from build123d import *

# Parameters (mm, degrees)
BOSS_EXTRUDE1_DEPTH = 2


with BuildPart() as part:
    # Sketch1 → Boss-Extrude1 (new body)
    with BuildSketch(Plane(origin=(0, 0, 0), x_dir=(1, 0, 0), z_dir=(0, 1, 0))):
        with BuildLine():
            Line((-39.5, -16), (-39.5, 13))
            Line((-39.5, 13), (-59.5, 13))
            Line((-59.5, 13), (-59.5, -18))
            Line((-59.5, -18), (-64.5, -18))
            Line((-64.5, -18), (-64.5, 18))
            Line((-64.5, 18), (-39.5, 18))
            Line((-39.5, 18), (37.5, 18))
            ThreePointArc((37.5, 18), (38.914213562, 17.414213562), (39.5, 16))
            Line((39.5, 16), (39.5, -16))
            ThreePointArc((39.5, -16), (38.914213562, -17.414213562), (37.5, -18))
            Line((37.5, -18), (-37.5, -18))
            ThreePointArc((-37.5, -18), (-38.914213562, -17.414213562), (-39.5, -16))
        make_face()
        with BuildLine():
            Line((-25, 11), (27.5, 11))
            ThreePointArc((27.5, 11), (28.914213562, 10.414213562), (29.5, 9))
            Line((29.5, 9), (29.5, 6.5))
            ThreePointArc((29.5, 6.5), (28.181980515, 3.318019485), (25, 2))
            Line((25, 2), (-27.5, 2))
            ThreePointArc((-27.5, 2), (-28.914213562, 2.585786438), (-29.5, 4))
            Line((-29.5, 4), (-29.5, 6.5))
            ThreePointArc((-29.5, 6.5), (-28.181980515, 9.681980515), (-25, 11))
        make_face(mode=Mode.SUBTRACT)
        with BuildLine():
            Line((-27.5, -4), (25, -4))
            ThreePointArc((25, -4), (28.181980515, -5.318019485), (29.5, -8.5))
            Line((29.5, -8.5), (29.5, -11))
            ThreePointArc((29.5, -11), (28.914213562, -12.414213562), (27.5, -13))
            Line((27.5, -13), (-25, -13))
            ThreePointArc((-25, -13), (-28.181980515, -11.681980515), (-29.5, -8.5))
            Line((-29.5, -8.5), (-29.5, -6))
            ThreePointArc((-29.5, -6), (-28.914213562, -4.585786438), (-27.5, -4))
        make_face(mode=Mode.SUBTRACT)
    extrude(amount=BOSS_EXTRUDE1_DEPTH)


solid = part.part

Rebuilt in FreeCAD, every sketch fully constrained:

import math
import FreeCAD as App
import Part
import Sketcher

V = App.Vector
Q = App.Units.Quantity

doc = App.newDocument("Part")
body = doc.addObject("PartDesign::Body", "Body")

sketch1 = body.newObject("Sketcher::SketchObject", "Sketch")
sketch1.AttachmentSupport = (doc.getObject("XZ_Plane"), [""])
sketch1.MapMode = "FlatFace"
sketch1.addGeometry([
    Part.LineSegment(V(-39.5, -13, 0), V(-39.5, 16, 0)),
    Part.ArcOfCircle(Part.Circle(V(-37.5, 16, 0), V(0, 0, 1), 2), math.radians(90), math.radians(180)),
    Part.LineSegment(V(-37.5, 18, 0), V(37.5, 18, 0)),
    Part.ArcOfCircle(Part.Circle(V(37.5, 16, 0), V(0, 0, 1), 2), math.radians(0), math.radians(90)),
    Part.LineSegment(V(39.5, 16, 0), V(39.5, -16, 0)),
    Part.ArcOfCircle(Part.Circle(V(37.5, -16, 0), V(0, 0, 1), 2), math.radians(-90), math.radians(0)),
    Part.LineSegment(V(37.5, -18, 0), V(-64.5, -18, 0)),
    Part.LineSegment(V(-64.5, -18, 0), V(-64.5, 18, 0)),
    Part.LineSegment(V(-64.5, 18, 0), V(-59.5, 18, 0)),
    Part.LineSegment(V(-59.5, 18, 0), V(-59.5, -13, 0)),
    Part.LineSegment(V(-59.5, -13, 0), V(-39.5, -13, 0)),
    Part.LineSegment(V(-27.5, 4, 0), V(25, 4, 0)),
    Part.ArcOfCircle(Part.Circle(V(25, 8.5, 0), V(0, 0, 1), 4.5), math.radians(-90), math.radians(0)),
    Part.LineSegment(V(29.5, 8.5, 0), V(29.5, 11, 0)),
    Part.ArcOfCircle(Part.Circle(V(27.5, 11, 0), V(0, 0, 1), 2), math.radians(0), math.radians(90)),
    Part.LineSegment(V(27.5, 13, 0), V(-25, 13, 0)),
    Part.ArcOfCircle(Part.Circle(V(-25, 8.5, 0), V(0, 0, 1), 4.5), math.radians(90), math.radians(180)),
    Part.LineSegment(V(-29.5, 8.5, 0), V(-29.5, 6, 0)),
    Part.ArcOfCircle(Part.Circle(V(-27.5, 6, 0), V(0, 0, 1), 2), math.radians(-180), math.radians(-90)),
    Part.LineSegment(V(-25, -11, 0), V(27.5, -11, 0)),
    Part.ArcOfCircle(Part.Circle(V(27.5, -9, 0), V(0, 0, 1), 2), math.radians(-90), math.radians(0)),
    Part.LineSegment(V(29.5, -9, 0), V(29.5, -6.5, 0)),
    Part.ArcOfCircle(Part.Circle(V(25, -6.5, 0), V(0, 0, 1), 4.5), math.radians(0), math.radians(90)),
    Part.LineSegment(V(25, -2, 0), V(-27.5, -2, 0)),
    Part.ArcOfCircle(Part.Circle(V(-27.5, -4, 0), V(0, 0, 1), 2), math.radians(90), math.radians(180)),
    Part.LineSegment(V(-29.5, -4, 0), V(-29.5, -6.5, 0)),
    Part.ArcOfCircle(Part.Circle(V(-25, -6.5, 0), V(0, 0, 1), 4.5), math.radians(-180), math.radians(-90)),
], False)
sketch1.addConstraint([
    Sketcher.Constraint("Tangent", 0, 2, 1, 2),
    Sketcher.Constraint("Tangent", 1, 1, 2, 1),
    Sketcher.Constraint("Tangent", 2, 2, 3, 2),
    Sketcher.Constraint("Tangent", 3, 1, 4, 1),
    Sketcher.Constraint("Tangent", 4, 2, 5, 2),
    Sketcher.Constraint("Tangent", 5, 1, 6, 1),
    Sketcher.Constraint("Coincident", 6, 2, 7, 1),
    Sketcher.Constraint("Coincident", 7, 2, 8, 1),
    Sketcher.Constraint("Coincident", 8, 2, 9, 1),
    Sketcher.Constraint("Coincident", 9, 2, 10, 1),
    Sketcher.Constraint("Coincident", 10, 2, 0, 1),
    Sketcher.Constraint("Tangent", 11, 2, 12, 1),
    Sketcher.Constraint("Tangent", 12, 2, 13, 1),
    Sketcher.Constraint("Tangent", 13, 2, 14, 1),
    Sketcher.Constraint("Tangent", 14, 2, 15, 1),
    Sketcher.Constraint("Tangent", 15, 2, 16, 1),
    Sketcher.Constraint("Tangent", 16, 2, 17, 1),
    Sketcher.Constraint("Tangent", 17, 2, 18, 1),
    Sketcher.Constraint("Tangent", 18, 2, 11, 1),
    Sketcher.Constraint("Tangent", 19, 2, 20, 1),
    Sketcher.Constraint("Tangent", 20, 2, 21, 1),
    Sketcher.Constraint("Tangent", 21, 2, 22, 1),
    Sketcher.Constraint("Tangent", 22, 2, 23, 1),
    Sketcher.Constraint("Tangent", 23, 2, 24, 1),
    Sketcher.Constraint("Tangent", 24, 2, 25, 1),
    Sketcher.Constraint("Tangent", 25, 2, 26, 1),
    Sketcher.Constraint("Tangent", 26, 2, 19, 1),
    Sketcher.Constraint("Vertical", 0),
    Sketcher.Constraint("Horizontal", 2),
    Sketcher.Constraint("Vertical", 4),
    Sketcher.Constraint("Horizontal", 6),
    Sketcher.Constraint("Vertical", 7),
    Sketcher.Constraint("Horizontal", 8),
    Sketcher.Constraint("Vertical", 9),
    Sketcher.Constraint("Horizontal", 10),
    Sketcher.Constraint("Horizontal", 11),
    Sketcher.Constraint("Vertical", 13),
    Sketcher.Constraint("Horizontal", 15),
    Sketcher.Constraint("Vertical", 17),
    Sketcher.Constraint("Horizontal", 19),
    Sketcher.Constraint("Vertical", 21),
    Sketcher.Constraint("Horizontal", 23),
    Sketcher.Constraint("Vertical", 25),
    Sketcher.Constraint("Equal", 1, 3),
    Sketcher.Constraint("Equal", 3, 5),
    Sketcher.Constraint("Equal", 5, 14),
    Sketcher.Constraint("Equal", 12, 16),
    Sketcher.Constraint("Equal", 14, 18),
    Sketcher.Constraint("Equal", 18, 20),
    Sketcher.Constraint("Equal", 16, 22),
    Sketcher.Constraint("Equal", 20, 24),
    Sketcher.Constraint("Equal", 22, 26),
    Sketcher.Constraint("Symmetric", 1, 3, 5, 3, -1, 1),
    Sketcher.Constraint("Symmetric", 12, 3, 16, 3, -2),
    Sketcher.Constraint("Symmetric", 22, 3, 26, 3, -2),
    Sketcher.Constraint("Horizontal", 2, 2, 7, 2),
    Sketcher.Constraint("Vertical", 14, 3, 20, 3),
    Sketcher.Constraint("Radius", 1, Q("2 mm")),
    Sketcher.Constraint("Radius", 12, Q("4.5 mm")),
    Sketcher.Constraint("DistanceX", 2, 1, 2, 2, Q("75 mm")),
    Sketcher.Constraint("DistanceX", 6, 2, 6, 1, Q("102 mm")),
    Sketcher.Constraint("DistanceX", 8, 1, 8, 2, Q("5 mm")),
    Sketcher.Constraint("DistanceY", 0, 1, 0, 2, Q("29 mm")),
    Sketcher.Constraint("DistanceY", 4, 2, 4, 1, Q("32 mm")),
    Sketcher.Constraint("DistanceX", 11, 1, 11, 2, Q("52.5 mm")),
    Sketcher.Constraint("DistanceY", -1, 1, 14, 3, Q("11 mm")),
    Sketcher.Constraint("DistanceY", 20, 3, -1, 1, Q("9 mm")),
])
pad1 = body.newObject("PartDesign::Pad", "Pad")
pad1.Profile = sketch1
pad1.Length = 2
pad1.Reversed = True

doc.recompute()
